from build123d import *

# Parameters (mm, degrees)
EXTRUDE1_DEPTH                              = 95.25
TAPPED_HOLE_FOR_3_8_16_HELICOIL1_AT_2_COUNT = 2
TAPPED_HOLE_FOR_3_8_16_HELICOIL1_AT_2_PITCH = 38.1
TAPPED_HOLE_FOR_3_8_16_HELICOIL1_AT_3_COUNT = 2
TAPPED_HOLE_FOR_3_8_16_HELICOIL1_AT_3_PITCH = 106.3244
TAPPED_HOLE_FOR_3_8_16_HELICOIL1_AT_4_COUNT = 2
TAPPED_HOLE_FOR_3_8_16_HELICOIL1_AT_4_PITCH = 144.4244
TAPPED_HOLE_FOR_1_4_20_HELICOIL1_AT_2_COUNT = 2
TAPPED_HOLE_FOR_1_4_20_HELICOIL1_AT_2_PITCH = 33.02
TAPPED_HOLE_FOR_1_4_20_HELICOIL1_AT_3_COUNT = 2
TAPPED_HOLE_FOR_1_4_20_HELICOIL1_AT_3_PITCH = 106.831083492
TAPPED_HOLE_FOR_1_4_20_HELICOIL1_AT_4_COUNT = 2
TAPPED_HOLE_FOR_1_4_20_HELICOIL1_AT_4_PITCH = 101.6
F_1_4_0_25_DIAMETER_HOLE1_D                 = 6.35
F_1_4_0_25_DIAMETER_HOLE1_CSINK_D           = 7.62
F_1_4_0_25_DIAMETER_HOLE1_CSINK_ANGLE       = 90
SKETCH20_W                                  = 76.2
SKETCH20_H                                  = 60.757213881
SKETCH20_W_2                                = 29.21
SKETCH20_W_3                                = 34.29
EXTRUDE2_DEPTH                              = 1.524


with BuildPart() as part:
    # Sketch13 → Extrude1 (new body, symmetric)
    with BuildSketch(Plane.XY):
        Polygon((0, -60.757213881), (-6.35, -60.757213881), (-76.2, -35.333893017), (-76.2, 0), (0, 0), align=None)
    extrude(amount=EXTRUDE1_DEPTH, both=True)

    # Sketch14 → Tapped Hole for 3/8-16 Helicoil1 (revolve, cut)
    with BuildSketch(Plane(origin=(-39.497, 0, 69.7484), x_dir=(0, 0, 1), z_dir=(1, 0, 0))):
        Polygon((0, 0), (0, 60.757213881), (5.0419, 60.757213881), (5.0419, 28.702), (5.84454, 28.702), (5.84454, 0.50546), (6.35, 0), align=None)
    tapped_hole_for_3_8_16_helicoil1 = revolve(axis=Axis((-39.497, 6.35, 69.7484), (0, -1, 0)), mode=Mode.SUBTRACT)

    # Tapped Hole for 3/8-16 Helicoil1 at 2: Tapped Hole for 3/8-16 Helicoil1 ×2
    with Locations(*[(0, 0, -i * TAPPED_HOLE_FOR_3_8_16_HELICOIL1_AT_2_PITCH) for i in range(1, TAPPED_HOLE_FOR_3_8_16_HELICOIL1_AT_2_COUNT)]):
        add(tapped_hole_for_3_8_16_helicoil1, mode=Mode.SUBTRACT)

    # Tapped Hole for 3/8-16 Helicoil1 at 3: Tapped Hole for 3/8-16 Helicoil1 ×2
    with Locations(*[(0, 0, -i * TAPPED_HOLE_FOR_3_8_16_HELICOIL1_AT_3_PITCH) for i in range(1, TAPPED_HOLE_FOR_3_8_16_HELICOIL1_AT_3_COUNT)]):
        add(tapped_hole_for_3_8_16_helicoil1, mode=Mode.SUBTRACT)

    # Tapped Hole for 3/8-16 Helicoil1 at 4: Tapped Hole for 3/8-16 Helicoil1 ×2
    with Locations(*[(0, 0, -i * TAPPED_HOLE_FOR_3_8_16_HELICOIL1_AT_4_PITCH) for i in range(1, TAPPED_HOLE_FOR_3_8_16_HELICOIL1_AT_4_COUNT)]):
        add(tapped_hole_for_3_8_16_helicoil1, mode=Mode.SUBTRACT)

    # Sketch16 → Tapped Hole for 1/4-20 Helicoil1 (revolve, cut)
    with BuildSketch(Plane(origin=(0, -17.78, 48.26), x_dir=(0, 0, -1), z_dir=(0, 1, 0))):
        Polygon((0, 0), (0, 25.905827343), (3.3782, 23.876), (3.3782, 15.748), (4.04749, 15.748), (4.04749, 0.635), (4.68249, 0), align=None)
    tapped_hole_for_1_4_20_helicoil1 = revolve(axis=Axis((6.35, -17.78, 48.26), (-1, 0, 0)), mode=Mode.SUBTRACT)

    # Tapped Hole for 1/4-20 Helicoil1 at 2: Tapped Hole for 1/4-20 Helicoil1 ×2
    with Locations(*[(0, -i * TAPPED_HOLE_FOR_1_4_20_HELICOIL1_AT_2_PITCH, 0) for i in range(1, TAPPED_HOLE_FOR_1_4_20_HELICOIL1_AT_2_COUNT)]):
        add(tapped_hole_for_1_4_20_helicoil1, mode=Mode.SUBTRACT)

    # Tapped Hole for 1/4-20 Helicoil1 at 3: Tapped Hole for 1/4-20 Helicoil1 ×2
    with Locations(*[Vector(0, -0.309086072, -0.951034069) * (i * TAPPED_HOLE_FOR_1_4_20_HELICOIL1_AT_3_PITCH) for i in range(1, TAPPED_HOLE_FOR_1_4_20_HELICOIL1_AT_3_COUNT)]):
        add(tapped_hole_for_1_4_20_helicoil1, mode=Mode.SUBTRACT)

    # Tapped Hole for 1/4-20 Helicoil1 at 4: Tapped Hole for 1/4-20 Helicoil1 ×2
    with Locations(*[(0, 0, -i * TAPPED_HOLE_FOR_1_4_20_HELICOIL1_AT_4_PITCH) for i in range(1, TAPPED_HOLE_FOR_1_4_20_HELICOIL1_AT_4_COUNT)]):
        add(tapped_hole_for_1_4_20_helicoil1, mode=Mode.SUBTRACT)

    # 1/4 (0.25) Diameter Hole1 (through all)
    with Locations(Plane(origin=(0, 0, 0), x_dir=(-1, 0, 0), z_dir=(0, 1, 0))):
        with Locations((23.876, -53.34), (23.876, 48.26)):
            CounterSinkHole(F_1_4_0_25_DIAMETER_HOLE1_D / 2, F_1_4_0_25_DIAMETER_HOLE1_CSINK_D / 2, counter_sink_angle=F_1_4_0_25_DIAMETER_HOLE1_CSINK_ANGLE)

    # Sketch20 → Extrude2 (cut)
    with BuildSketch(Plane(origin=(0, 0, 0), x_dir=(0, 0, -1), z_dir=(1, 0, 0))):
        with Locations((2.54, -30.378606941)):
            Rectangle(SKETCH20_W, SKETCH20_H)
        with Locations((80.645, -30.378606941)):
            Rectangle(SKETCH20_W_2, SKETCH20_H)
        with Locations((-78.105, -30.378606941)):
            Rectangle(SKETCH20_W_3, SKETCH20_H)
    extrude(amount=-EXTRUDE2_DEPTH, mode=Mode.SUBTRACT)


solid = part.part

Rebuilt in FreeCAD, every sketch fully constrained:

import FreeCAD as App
import Part
import Sketcher
from FreeCAD import Vector
Q = App.Units.Quantity


def add_polygon(sketch, points):
    """Adds a closed chain of lines whose ends are joined by coincident constraints."""
    first, n = sketch.GeometryCount, len(points)
    for a, b in zip(points, points[1:] + points[:1]):
        sketch.addGeometry(Part.LineSegment(App.Vector(*a, 0), App.Vector(*b, 0)), False)
    for i in range(n):
        sketch.addConstraint(Sketcher.Constraint("Coincident", first + i, 2, first + (i + 1) % n, 1))

doc = App.newDocument("Part")
body = doc.addObject("PartDesign::Body", "Body")

# Sketch on XY plane
sketch1 = body.newObject("Sketcher::SketchObject", "Sketch")
sketch1.AttachmentSupport = (doc.getObject("XY_Plane"), [""])
sketch1.MapMode = "FlatFace"
add_polygon(sketch1, [(-6.35, -60.757214), (0, -60.757214), (0, 0), (-76.2, 0), (-76.2, -35.333893)])  # lines 0-4
sketch1.addConstraint(Sketcher.Constraint("Horizontal", 0))
sketch1.addConstraint(Sketcher.Constraint("Vertical", 1))
sketch1.addConstraint(Sketcher.Constraint("Horizontal", 2))
sketch1.addConstraint(Sketcher.Constraint("Vertical", 3))
sketch1.addConstraint(Sketcher.Constraint("Coincident", 1, 2, -1, 1))
sketch1.addConstraint(Sketcher.Constraint("DistanceX", 2, 2, 2, 1, Q("3 in")))
sketch1.addConstraint(Sketcher.Constraint("Angle", 4, Q("-20 deg")))
sketch1.addConstraint(Sketcher.Constraint("DistanceX", 0, 1, 0, 2, Q("0.25 in")))
sketch1.addConstraint(Sketcher.Constraint("DistanceY", 1, 1, 1, 2, 60.757214))
pad1 = body.newObject("PartDesign::Pad", "Pad")
pad1.Profile = sketch1
pad1.Length = Q("7.5 in")
pad1.Midplane = True

# Sketch on YZ plane
sketch2 = body.newObject("Sketcher::SketchObject", "Sketch001")
sketch2.AttachmentSupport = (doc.getObject("YZ_Plane"), [""])
sketch2.MapMode = "FlatFace"
sketch2.AttachmentOffset = App.Placement(Vector(0, 0, -1.555 * 25.4), App.Rotation())
add_polygon(sketch2, [(-60.757214, 69.7484), (0, 69.7484), (0, 76.0984), (-0.50546, 75.59294), (-28.702, 75.59294), (-28.702, 74.7903), (-60.757214, 74.7903)])  # lines 0-6
sketch2.addGeometry(Part.LineSegment(Vector(0, 69.7484, 0), Vector(-60.757214, 69.7484, 0)), True)  # axis
sketch2.addConstraint(Sketcher.Constraint("Horizontal", 0))
sketch2.addConstraint(Sketcher.Constraint("Vertical", 1))
sketch2.addConstraint(Sketcher.Constraint("Horizontal", 3))
sketch2.addConstraint(Sketcher.Constraint("Vertical", 4))
sketch2.addConstraint(Sketcher.Constraint("Horizontal", 5))
sketch2.addConstraint(Sketcher.Constraint("Vertical", 6))
sketch2.addConstraint(Sketcher.Constraint("Horizontal", 7))
sketch2.addConstraint(Sketcher.Constraint("Coincident", 7, 1, 0, 2))
sketch2.addConstraint(Sketcher.Constraint("PointOnObject", 0, 2, -2))
sketch2.addConstraint(Sketcher.Constraint("Vertical", 5, 2, 7, 2))
sketch2.addConstraint(Sketcher.Constraint("Angle", 2, Q("-135 deg")))
sketch2.addConstraint(Sketcher.Constraint("DistanceY", 1, 1, 1, 2, Q("0.25 in")))
sketch2.addConstraint(Sketcher.Constraint("DistanceX", 3, 2, -1, 1, Q("1.13 in")))
sketch2.addConstraint(Sketcher.Constraint("DistanceX", 3, 2, 3, 1, Q("1.1101 in")))
sketch2.addConstraint(Sketcher.Constraint("DistanceY", 4, 2, 4, 1, Q("0.0316 in")))
sketch2.addConstraint(Sketcher.Constraint("DistanceY", -1, 1, 0, 2, Q("2.746 in")))
sketch2.addConstraint(Sketcher.Constraint("DistanceX", 0, 1, 0, 2, 60.757214))
groove = body.newObject("PartDesign::Groove", "Groove")
groove.Profile = sketch2
groove.ReferenceAxis = (sketch2, ["Axis0"])
groove.Angle = 360
doc.recompute()

linearpattern = body.newObject("PartDesign::LinearPattern", "LinearPattern")
linearpattern.Originals = [groove]
linearpattern.Direction = (doc.getObject("Z_Axis"), [""])
linearpattern.Mode = "offset"
linearpattern.Offset = Q("1.5 in")
linearpattern.Occurrences = 2
linearpattern.Reversed = True
body.Tip = linearpattern
doc.recompute()

linearpattern2 = body.newObject("PartDesign::LinearPattern", "LinearPattern001")
linearpattern2.Originals = [groove]
linearpattern2.Direction = (doc.getObject("Z_Axis"), [""])
linearpattern2.Mode = "offset"
linearpattern2.Offset = Q("4.186 in")
linearpattern2.Occurrences = 2
linearpattern2.Reversed = True
body.Tip = linearpattern2
doc.recompute()

linearpattern3 = body.newObject("PartDesign::LinearPattern", "LinearPattern002")
linearpattern3.Originals = [groove]
linearpattern3.Direction = (doc.getObject("Z_Axis"), [""])
linearpattern3.Mode = "offset"
linearpattern3.Offset = Q("5.686 in")
linearpattern3.Occurrences = 2
linearpattern3.Reversed = True
body.Tip = linearpattern3

# Sketch on XZ plane
sketch3 = body.newObject("Sketcher::SketchObject", "Sketch002")
sketch3.AttachmentSupport = (doc.getObject("XZ_Plane"), [""])
sketch3.MapMode = "FlatFace"
sketch3.AttachmentOffset = App.Placement(Vector(0, 0, 0.7 * 25.4), App.Rotation())
add_polygon(sketch3, [(-25.905827, 48.26), (0, 48.26), (0, 43.57751), (-0.635, 44.21251), (-15.748, 44.21251), (-15.748, 44.8818), (-23.876, 44.8818)])  # lines 0-6
sketch3.addGeometry(Part.LineSegment(Vector(0, 48.26, 0), Vector(-25.905827, 48.26, 0)), True)  # axis
sketch3.addConstraint(Sketcher.Constraint("Horizontal", 0))
sketch3.addConstraint(Sketcher.Constraint("Vertical", 1))
sketch3.addConstraint(Sketcher.Constraint("Horizontal", 3))
sketch3.addConstraint(Sketcher.Constraint("Vertical", 4))
sketch3.addConstraint(Sketcher.Constraint("Horizontal", 5))
sketch3.addConstraint(Sketcher.Constraint("Horizontal", 7))
sketch3.addConstraint(Sketcher.Constraint("Coincident", 7, 1, 0, 2))
sketch3.addConstraint(Sketcher.Constraint("PointOnObject", 0, 2, -2))
sketch3.addConstraint(Sketcher.Constraint("Equal", 0, 7))
sketch3.addConstraint(Sketcher.Constraint("Angle", 2, Q("135 deg")))
sketch3.addConstraint(Sketcher.Constraint("Angle", 6, Q("121 deg")))
sketch3.addConstraint(Sketcher.Constraint("DistanceX", 5, 2, 5, 1, Q("0.32 in")))
sketch3.addConstraint(Sketcher.Constraint("DistanceY", -1, 1, 0, 2, Q("1.9 in")))
sketch3.addConstraint(Sketcher.Constraint("DistanceX", 3, 2, 3, 1, Q("0.595 in")))
sketch3.addConstraint(Sketcher.Constraint("DistanceX", 3, 2, -1, 1, Q("0.62 in")))
sketch3.addConstraint(Sketcher.Constraint("DistanceY", -1, 1, 4, 2, Q("1.767 in")))
sketch3.addConstraint(Sketcher.Constraint("DistanceY", 1, 2, 1, 1, 4.68249))
groove2 = body.newObject("PartDesign::Groove", "Groove001")
groove2.Profile = sketch3
groove2.ReferenceAxis = (sketch3, ["Axis0"])
groove2.Angle = 360
doc.recompute()

linearpattern4 = body.newObject("PartDesign::LinearPattern", "LinearPattern003")
linearpattern4.Originals = [groove2]
linearpattern4.Direction = (doc.getObject("Y_Axis"), [""])
linearpattern4.Mode = "offset"
linearpattern4.Offset = Q("1.3 in")
linearpattern4.Occurrences = 2
linearpattern4.Reversed = True
body.Tip = linearpattern4
doc.recompute()

datumline = body.newObject("PartDesign::Line", "DatumLine")
datumline.Placement = App.Placement(Vector(0, 0, 0), App.Rotation(Vector(0, 0, 1), Vector(0, -0.309086072, -0.951034069)))
linearpattern5 = body.newObject("PartDesign::LinearPattern", "LinearPattern004")
linearpattern5.Originals = [groove2]
linearpattern5.Direction = (datumline, [""])
linearpattern5.Mode = "offset"
linearpattern5.Offset = 106.831084
linearpattern5.Occurrences = 2
body.Tip = linearpattern5
doc.recompute()

linearpattern6 = body.newObject("PartDesign::LinearPattern", "LinearPattern005")
linearpattern6.Originals = [groove2]
linearpattern6.Direction = (doc.getObject("Z_Axis"), [""])
linearpattern6.Mode = "offset"
linearpattern6.Offset = Q("4 in")
linearpattern6.Occurrences = 2
linearpattern6.Reversed = True
body.Tip = linearpattern6

# Sketch on XZ plane
sketch4 = body.newObject("Sketcher::SketchObject", "Sketch003")
sketch4.AttachmentSupport = (doc.getObject("XZ_Plane"), [""])
sketch4.MapMode = "FlatFace"
sketch4.addGeometry(Part.Circle(Vector(-23.876, -53.34, 0), Vector(0, 0, 1), 3.175), False)
sketch4.addGeometry(Part.Circle(Vector(-23.876, 48.26, 0), Vector(0, 0, 1), 3.175), False)
sketch4.addConstraint(Sketcher.Constraint("Equal", 0, 1))
sketch4.addConstraint(Sketcher.Constraint("Vertical", 0, 3, 1, 3))
sketch4.addConstraint(Sketcher.Constraint("Diameter", 0, Q("0.25 in")))
sketch4.addConstraint(Sketcher.Constraint("DistanceY", 0, 3, 1, 3, Q("4 in")))
sketch4.addConstraint(Sketcher.Constraint("DistanceY", 0, 3, -1, 1, Q("2.1 in")))
sketch4.addConstraint(Sketcher.Constraint("DistanceX", 0, 3, -1, 1, Q("0.94 in")))
doc.recompute()
hole = body.newObject("PartDesign::Hole", "Hole")
hole.Profile = sketch4
hole.ThreadType = "None"
hole.Diameter = Q("0.25 in")
hole.DepthType = "ThroughAll"
hole.HoleCutType = "Countersink"
hole.HoleCutDiameter = Q("0.3 in")
hole.HoleCutCountersinkAngle = 90
hole.Reversed = True

# Sketch on YZ plane
sketch5 = body.newObject("Sketcher::SketchObject", "Sketch004")
sketch5.AttachmentSupport = (doc.getObject("YZ_Plane"), [""])
sketch5.MapMode = "FlatFace"
add_polygon(sketch5, [(0, 35.56), (-60.757214, 35.56), (-60.757214, -40.64), (0, -40.64)])  # lines 0-3
add_polygon(sketch5, [(0, -66.04), (-60.757214, -66.04), (-60.757214, -95.25), (0, -95.25)])  # lines 4-7
add_polygon(sketch5, [(0, 95.25), (-60.757214, 95.25), (-60.757214, 60.96), (0, 60.96)])  # lines 8-11
sketch5.addConstraint(Sketcher.Constraint("Horizontal", 0))
sketch5.addConstraint(Sketcher.Constraint("Vertical", 1))
sketch5.addConstraint(Sketcher.Constraint("Horizontal", 2))
sketch5.addConstraint(Sketcher.Constraint("Vertical", 3))
sketch5.addConstraint(Sketcher.Constraint("Horizontal", 4))
sketch5.addConstraint(Sketcher.Constraint("Vertical", 5))
sketch5.addConstraint(Sketcher.Constraint("Horizontal", 6))
sketch5.addConstraint(Sketcher.Constraint("Vertical", 7))
sketch5.addConstraint(Sketcher.Constraint("Horizontal", 8))
sketch5.addConstraint(Sketcher.Constraint("Vertical", 9))
sketch5.addConstraint(Sketcher.Constraint("Horizontal", 10))
sketch5.addConstraint(Sketcher.Constraint("Vertical", 11))
sketch5.addConstraint(Sketcher.Constraint("Symmetric", 6, 2, 11, 2, -1, 1))
sketch5.addConstraint(Sketcher.Constraint("PointOnObject", 2, 2, -2))
sketch5.addConstraint(Sketcher.Constraint("PointOnObject", 6, 2, -2))
sketch5.addConstraint(Sketcher.Constraint("Vertical", 1, 2, 4, 2))
sketch5.addConstraint(Sketcher.Constraint("Vertical", 5, 2, 8, 2))
sketch5.addConstraint(Sketcher.Constraint("DistanceY", 1, 2, 1, 1, Q("3 in")))
sketch5.addConstraint(Sketcher.Constraint("DistanceY", 4, 2, 1, 2, Q("1 in")))
sketch5.addConstraint(Sketcher.Constraint("DistanceY", 0, 2, 9, 2, Q("1 in")))
sketch5.addConstraint(Sketcher.Constraint("DistanceY", 5, 2, 5, 1, Q("1.15 in")))
sketch5.addConstraint(Sketcher.Constraint("DistanceY", 9, 2, 9, 1, Q("1.35 in")))
sketch5.addConstraint(Sketcher.Constraint("DistanceX", 0, 2, 0, 1, 60.757214))
pocket1 = body.newObject("PartDesign::Pocket", "Pocket")
pocket1.Profile = sketch5
pocket1.Length = Q("0.06 in")

doc.recompute()
